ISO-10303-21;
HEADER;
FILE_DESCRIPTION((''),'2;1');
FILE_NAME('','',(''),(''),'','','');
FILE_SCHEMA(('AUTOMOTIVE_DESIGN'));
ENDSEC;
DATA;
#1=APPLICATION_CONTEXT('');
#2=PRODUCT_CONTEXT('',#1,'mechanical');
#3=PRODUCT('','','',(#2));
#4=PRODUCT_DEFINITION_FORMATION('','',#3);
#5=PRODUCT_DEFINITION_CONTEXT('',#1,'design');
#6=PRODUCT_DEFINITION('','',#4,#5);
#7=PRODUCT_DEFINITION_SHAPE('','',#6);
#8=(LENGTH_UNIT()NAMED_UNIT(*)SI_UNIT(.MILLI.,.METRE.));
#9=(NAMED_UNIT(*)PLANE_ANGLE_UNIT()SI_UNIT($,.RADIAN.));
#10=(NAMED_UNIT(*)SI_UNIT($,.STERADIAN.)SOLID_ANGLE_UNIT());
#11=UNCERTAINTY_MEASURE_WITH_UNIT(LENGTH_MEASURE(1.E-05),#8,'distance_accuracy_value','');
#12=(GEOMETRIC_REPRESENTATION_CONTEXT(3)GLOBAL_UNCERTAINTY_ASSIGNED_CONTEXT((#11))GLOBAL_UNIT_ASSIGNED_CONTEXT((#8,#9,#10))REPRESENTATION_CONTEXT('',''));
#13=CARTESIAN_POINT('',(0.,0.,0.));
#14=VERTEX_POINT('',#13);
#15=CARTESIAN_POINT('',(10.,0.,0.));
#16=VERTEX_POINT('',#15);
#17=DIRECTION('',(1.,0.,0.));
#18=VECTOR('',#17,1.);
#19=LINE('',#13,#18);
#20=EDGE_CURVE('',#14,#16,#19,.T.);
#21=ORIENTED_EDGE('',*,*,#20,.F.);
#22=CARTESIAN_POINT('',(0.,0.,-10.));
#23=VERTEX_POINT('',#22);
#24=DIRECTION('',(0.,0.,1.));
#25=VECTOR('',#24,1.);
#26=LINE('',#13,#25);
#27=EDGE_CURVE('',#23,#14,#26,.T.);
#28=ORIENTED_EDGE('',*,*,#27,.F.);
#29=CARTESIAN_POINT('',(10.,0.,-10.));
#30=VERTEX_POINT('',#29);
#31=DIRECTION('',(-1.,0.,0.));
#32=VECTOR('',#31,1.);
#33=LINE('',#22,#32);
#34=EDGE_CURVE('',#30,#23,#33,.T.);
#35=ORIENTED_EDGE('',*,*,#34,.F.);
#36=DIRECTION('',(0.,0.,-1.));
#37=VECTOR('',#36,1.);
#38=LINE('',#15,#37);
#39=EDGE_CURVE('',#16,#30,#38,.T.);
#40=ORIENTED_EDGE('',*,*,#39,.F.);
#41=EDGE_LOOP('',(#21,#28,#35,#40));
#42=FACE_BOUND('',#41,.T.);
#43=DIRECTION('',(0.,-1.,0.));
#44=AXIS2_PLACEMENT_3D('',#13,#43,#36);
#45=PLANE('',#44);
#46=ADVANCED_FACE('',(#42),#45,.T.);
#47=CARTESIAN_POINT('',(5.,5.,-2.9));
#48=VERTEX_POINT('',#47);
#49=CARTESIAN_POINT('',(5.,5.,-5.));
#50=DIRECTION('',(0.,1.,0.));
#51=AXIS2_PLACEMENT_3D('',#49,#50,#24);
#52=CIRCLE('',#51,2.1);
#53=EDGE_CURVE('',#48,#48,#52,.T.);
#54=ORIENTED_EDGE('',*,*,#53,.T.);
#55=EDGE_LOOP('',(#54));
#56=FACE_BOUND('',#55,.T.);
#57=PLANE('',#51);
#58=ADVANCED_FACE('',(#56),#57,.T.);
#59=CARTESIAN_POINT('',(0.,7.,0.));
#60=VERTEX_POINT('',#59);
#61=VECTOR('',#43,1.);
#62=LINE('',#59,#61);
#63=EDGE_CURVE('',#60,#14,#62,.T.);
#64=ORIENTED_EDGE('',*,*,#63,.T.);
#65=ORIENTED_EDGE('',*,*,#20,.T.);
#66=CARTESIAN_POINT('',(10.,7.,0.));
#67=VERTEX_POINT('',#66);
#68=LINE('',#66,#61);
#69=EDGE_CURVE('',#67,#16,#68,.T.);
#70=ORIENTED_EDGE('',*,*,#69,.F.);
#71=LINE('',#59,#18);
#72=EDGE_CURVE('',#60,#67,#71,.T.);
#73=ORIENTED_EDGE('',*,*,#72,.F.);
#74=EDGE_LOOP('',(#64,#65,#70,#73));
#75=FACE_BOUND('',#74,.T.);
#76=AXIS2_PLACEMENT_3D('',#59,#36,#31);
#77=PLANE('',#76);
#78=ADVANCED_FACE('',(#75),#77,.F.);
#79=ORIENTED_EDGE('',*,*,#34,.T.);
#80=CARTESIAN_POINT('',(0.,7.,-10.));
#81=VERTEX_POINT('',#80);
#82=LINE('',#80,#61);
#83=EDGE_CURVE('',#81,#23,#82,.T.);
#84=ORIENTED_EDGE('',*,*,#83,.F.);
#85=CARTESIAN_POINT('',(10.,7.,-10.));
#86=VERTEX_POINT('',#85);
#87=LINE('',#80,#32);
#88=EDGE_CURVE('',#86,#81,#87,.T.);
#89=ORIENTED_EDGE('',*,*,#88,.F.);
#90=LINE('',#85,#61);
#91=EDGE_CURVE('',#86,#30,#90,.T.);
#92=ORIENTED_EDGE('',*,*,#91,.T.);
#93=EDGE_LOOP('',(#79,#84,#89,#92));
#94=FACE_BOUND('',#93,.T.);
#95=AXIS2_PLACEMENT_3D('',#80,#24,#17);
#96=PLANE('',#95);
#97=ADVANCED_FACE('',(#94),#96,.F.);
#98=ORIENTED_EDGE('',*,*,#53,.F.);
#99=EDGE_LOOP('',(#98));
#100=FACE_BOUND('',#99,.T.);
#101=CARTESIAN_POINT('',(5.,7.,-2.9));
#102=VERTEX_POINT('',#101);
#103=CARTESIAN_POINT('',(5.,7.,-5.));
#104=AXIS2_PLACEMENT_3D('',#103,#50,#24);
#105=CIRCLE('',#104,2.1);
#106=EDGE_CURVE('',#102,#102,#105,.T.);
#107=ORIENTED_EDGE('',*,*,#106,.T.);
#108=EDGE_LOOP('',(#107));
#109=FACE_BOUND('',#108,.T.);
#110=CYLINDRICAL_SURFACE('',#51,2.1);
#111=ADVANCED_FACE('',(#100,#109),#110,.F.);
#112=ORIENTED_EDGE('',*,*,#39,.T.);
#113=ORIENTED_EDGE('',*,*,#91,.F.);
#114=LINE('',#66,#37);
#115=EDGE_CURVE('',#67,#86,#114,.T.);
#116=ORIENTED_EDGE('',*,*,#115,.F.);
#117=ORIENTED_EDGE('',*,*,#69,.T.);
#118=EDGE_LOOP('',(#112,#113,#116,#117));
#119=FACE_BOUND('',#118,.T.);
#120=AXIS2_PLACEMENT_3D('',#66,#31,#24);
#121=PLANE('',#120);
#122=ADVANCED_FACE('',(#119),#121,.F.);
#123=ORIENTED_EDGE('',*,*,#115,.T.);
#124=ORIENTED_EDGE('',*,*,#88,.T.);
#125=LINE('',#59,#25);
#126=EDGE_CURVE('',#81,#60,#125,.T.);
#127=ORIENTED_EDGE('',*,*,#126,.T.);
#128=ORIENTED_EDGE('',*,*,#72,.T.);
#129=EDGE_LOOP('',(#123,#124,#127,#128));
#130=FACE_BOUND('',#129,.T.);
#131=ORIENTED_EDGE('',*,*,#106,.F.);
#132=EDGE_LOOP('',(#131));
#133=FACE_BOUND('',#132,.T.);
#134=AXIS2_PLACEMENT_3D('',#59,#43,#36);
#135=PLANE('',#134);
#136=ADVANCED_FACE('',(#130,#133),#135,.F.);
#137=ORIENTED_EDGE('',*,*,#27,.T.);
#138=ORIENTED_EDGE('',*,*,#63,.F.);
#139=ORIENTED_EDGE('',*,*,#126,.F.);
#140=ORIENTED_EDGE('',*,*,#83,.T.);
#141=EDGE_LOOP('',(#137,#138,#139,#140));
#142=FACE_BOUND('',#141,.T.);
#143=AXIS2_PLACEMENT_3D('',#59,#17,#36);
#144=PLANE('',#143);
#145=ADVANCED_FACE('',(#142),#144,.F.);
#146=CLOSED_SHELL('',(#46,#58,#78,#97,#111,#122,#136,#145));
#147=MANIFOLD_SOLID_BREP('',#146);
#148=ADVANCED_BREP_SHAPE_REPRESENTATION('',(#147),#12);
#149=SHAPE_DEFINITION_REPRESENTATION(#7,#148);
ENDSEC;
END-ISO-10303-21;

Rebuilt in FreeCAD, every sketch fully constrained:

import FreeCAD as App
import Part
import Sketcher
from FreeCAD import Vector

doc = App.newDocument("Part")
params = doc.addObject("Spreadsheet::Sheet", "Params")
for row, (alias, value) in enumerate([
    ("sketch1_width", "10 mm"),
    ("pad1_length", "7 mm"),
    ("sketch2_diameter", "4.2 mm"),
    ("pocket1_length", "2 mm"),
], start=1):
    params.set(f"A{row}", alias)
    params.set(f"B{row}", "=" + value)
    params.setAlias(f"B{row}", alias)

body = doc.addObject("PartDesign::Body", "Body")

# Sketch on XZ plane
sketch1 = doc.addObject("Sketcher::SketchObject", "Sketch")
body.addObject(sketch1)
sketch1.AttachmentSupport = (doc.XZ_Plane, [""])
sketch1.MapMode = "FlatFace"
sketch1.addGeometry([
    Part.LineSegment(Vector(0, -10, 0), Vector(0, 0, 0)),
    Part.LineSegment(Vector(0, 0, 0), Vector(10, 0, 0)),
    Part.LineSegment(Vector(10, 0, 0), Vector(10, -10, 0)),
    Part.LineSegment(Vector(10, -10, 0), Vector(0, -10, 0)),
], False)
sketch1.addConstraint([
    Sketcher.Constraint("Coincident", 0, 2, 1, 1),
    Sketcher.Constraint("Coincident", 1, 2, 2, 1),
    Sketcher.Constraint("Coincident", 2, 2, 3, 1),
    Sketcher.Constraint("Coincident", 3, 2, 0, 1),
    Sketcher.Constraint("Vertical", 0),
    Sketcher.Constraint("Horizontal", 1),
    Sketcher.Constraint("Vertical", 2),
    Sketcher.Constraint("Horizontal", 3),
    Sketcher.Constraint("Coincident", 0, 2, -1, 1),
    Sketcher.Constraint("Equal", 3, 0),
    Sketcher.Constraint("DistanceX", 1, 1, 1, 2, 10.0),
])
sketch1.setExpression("Constraints[10]", "Params.sketch1_width")
pad1 = doc.addObject("PartDesign::Pad", "Pad")
body.addObject(pad1)
pad1.Profile = sketch1
pad1.setExpression("Length", "Params.pad1_length")
pad1.Reversed = True

# Sketch on XZ plane
sketch2 = doc.addObject("Sketcher::SketchObject", "Sketch001")
body.addObject(sketch2)
sketch2.AttachmentSupport = (doc.XZ_Plane, [""])
sketch2.MapMode = "FlatFace"
sketch2.AttachmentOffset = App.Placement(Vector(0, 0, -7), App.Rotation())
sketch2.addGeometry(Part.Circle(Vector(5, -5, 0), Vector(0, 0, 1), 2.1), False)
sketch2.addConstraint([
    Sketcher.Constraint("Diameter", 0, 4.2),
    Sketcher.Constraint("DistanceX", -1, 1, 0, 3, 5.0),
    Sketcher.Constraint("DistanceY", 0, 3, -1, 1, 5.0),
])
sketch2.setExpression("Constraints[0]", "Params.sketch2_diameter")
pocket1 = doc.addObject("PartDesign::Pocket", "Pocket")
body.addObject(pocket1)
pocket1.Profile = sketch2
pocket1.setExpression("Length", "Params.pocket1_length")
pocket1.Reversed = True

doc.recompute()
